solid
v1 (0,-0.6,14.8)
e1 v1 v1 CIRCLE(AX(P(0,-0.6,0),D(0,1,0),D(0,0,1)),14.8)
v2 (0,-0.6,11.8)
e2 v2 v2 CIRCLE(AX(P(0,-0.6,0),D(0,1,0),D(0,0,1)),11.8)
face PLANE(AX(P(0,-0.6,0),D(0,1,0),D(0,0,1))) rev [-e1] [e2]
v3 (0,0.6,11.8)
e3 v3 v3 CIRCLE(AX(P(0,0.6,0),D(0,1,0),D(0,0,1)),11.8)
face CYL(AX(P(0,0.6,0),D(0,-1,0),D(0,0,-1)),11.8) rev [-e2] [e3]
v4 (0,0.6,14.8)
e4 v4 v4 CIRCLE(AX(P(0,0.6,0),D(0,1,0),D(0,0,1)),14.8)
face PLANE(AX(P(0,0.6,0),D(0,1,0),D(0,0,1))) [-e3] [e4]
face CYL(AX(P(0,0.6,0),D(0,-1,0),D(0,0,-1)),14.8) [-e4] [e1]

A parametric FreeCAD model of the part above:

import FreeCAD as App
import Part
import Sketcher

V = App.Vector

doc = App.newDocument("Part")
params = doc.addObject("Spreadsheet::Sheet", "Params")
for row, (alias, value) in enumerate([
    ("sketch1_diameter", "29.6 mm"),
    ("sketch1_diameter2", "23.6 mm"),
    ("pad1_length", "1.2 mm"),
], start=1):
    params.set(f"A{row}", alias)
    params.set(f"B{row}", "=" + value)
    params.setAlias(f"B{row}", alias)

body = doc.addObject("PartDesign::Body", "Body")

sketch1 = body.newObject("Sketcher::SketchObject", "Sketch")
sketch1.AttachmentSupport = (doc.getObject("XZ_Plane"), [""])
sketch1.MapMode = "FlatFace"
sketch1.addGeometry([
    Part.Circle(V(0, 0, 0), V(0, 0, 1), 15),
    Part.Circle(V(0, 0, 0), V(0, 0, 1), 12),
], False)
sketch1.addConstraint([
    Sketcher.Constraint("Coincident", 0, 3, -1, 1),
    Sketcher.Constraint("Coincident", 1, 3, -1, 1),
    Sketcher.Constraint("Diameter", 0, 29.6),
    Sketcher.Constraint("Diameter", 1, 23.6),
])
sketch1.setExpression("Constraints[2]", "Params.sketch1_diameter")
sketch1.setExpression("Constraints[3]", "Params.sketch1_diameter2")
pad1 = body.newObject("PartDesign::Pad", "Pad")
pad1.Profile = sketch1
pad1.setExpression("Length", "Params.pad1_length")
pad1.Midplane = True

doc.recompute()
